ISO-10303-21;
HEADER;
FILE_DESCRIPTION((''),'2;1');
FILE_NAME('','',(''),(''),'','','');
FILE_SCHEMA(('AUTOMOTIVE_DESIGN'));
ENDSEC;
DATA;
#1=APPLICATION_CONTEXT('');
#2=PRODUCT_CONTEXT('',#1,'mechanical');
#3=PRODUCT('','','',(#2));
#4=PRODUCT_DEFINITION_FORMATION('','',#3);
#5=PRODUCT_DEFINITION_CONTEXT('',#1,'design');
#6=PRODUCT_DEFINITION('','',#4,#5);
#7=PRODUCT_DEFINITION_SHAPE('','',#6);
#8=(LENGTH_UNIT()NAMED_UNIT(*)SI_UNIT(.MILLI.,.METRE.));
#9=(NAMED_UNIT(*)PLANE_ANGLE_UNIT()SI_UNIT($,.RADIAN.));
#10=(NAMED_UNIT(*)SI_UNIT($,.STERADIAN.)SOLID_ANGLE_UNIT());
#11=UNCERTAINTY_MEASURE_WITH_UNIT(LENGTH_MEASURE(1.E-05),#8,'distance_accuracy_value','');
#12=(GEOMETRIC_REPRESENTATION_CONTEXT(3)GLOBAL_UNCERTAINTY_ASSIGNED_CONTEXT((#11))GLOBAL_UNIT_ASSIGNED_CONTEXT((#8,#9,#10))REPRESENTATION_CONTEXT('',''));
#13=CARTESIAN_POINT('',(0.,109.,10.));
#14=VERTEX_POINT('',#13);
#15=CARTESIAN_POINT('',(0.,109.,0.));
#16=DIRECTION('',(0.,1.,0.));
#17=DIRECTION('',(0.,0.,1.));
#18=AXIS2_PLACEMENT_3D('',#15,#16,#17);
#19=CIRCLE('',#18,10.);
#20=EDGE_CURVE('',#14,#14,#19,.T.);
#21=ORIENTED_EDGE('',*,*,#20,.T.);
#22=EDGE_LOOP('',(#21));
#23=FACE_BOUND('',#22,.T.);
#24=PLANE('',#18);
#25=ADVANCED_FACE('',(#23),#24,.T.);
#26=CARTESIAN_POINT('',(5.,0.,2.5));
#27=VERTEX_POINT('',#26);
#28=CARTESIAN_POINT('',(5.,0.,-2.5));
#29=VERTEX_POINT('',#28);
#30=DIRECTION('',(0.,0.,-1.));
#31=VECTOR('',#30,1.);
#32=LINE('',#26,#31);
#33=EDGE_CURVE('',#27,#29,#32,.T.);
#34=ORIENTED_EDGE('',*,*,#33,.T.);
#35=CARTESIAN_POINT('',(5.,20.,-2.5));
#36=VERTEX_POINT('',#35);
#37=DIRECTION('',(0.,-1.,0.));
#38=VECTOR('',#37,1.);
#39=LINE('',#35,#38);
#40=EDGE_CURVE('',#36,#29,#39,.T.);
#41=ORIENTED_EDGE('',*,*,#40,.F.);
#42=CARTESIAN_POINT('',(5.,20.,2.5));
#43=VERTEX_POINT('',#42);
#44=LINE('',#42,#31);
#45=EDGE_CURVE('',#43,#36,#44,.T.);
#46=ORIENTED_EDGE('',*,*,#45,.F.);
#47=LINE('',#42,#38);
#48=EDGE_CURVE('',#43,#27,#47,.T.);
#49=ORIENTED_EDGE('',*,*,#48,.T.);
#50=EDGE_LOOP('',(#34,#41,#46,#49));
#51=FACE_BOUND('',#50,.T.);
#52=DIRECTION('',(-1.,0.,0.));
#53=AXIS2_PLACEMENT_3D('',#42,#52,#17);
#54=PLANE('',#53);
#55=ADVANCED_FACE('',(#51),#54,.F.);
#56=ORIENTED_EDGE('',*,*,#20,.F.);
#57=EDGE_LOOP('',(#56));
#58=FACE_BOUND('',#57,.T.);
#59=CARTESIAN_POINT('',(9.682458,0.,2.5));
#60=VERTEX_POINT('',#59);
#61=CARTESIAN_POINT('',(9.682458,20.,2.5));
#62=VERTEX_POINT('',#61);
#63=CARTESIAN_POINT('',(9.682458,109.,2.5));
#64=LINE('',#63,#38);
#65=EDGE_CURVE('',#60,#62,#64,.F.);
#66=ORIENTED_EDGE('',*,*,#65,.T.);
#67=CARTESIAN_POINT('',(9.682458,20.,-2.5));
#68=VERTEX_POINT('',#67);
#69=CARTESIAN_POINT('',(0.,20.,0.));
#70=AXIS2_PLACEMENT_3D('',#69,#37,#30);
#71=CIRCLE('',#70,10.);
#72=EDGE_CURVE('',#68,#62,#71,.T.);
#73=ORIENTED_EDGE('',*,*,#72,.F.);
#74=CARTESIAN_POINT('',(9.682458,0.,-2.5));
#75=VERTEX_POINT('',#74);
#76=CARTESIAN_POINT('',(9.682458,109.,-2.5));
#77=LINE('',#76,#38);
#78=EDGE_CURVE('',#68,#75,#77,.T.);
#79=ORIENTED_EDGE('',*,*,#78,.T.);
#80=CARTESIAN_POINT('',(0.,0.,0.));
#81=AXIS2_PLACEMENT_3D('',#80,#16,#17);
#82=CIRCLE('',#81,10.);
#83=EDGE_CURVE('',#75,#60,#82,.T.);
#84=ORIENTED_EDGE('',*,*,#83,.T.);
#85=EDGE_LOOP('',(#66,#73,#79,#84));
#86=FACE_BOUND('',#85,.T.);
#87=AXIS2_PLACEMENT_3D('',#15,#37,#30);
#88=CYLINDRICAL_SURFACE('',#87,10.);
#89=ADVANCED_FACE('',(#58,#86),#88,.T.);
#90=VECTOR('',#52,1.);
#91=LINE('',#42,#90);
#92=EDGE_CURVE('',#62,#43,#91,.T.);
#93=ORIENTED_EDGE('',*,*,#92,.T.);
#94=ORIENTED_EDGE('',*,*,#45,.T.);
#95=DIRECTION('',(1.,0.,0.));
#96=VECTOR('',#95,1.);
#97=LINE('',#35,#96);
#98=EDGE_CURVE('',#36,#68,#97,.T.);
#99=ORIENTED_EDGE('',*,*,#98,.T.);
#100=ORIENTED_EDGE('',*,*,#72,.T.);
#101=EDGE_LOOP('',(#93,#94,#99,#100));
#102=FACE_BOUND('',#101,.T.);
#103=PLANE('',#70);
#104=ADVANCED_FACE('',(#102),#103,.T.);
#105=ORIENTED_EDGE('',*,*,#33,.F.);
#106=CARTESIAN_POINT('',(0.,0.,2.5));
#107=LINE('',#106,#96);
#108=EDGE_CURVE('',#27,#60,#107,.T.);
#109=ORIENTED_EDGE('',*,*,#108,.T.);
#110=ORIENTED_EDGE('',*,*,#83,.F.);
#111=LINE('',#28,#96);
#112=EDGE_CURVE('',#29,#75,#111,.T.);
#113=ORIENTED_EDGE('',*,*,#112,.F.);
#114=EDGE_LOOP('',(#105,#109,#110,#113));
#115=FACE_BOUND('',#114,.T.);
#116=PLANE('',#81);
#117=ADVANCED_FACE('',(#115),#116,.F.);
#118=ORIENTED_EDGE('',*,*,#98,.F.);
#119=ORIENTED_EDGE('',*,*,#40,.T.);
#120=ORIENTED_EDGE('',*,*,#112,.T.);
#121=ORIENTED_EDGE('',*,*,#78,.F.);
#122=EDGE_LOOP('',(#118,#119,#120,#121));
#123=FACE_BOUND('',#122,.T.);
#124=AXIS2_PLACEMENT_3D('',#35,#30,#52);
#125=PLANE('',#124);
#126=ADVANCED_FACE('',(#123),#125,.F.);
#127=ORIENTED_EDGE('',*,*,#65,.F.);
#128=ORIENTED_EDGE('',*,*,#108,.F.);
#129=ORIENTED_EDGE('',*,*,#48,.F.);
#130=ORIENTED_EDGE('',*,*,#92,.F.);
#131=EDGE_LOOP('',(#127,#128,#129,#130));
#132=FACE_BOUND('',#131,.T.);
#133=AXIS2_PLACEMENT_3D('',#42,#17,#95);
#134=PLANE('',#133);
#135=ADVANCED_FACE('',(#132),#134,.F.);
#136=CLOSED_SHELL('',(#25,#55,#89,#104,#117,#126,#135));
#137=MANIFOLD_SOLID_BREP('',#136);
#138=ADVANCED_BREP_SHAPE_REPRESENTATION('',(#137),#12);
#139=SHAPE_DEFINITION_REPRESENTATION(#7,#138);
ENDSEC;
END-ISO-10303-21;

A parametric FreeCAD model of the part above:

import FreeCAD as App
import Part
import Sketcher

V = App.Vector

doc = App.newDocument("Part")
params = doc.addObject("Spreadsheet::Sheet", "Params")
for row, (alias, value) in enumerate([
    ("sketch1_diameter", "20 mm"),
    ("pad1_length", "109 mm"),
    ("sketch2_width", "10 mm"),
    ("sketch2_height", "5 mm"),
    ("pocket1_length", "20 mm"),
], start=1):
    params.set(f"A{row}", alias)
    params.set(f"B{row}", "=" + value)
    params.setAlias(f"B{row}", alias)

body = doc.addObject("PartDesign::Body", "Body")

# Sketch on XZ plane
sketch1 = body.newObject("Sketcher::SketchObject", "Sketch")
sketch1.AttachmentSupport = (doc.getObject("XZ_Plane"), [""])
sketch1.MapMode = "FlatFace"
sketch1.addGeometry(Part.Circle(V(0, 0, 0), V(0, 0, 1), 10), False)
sketch1.addConstraint([
    Sketcher.Constraint("Coincident", 0, 3, -1, 1),
    Sketcher.Constraint("Diameter", 0, 20.0),
])
sketch1.setExpression("Constraints[1]", "Params.sketch1_diameter")
pad1 = body.newObject("PartDesign::Pad", "Pad")
pad1.Profile = sketch1
pad1.setExpression("Length", "Params.pad1_length")
pad1.Reversed = True

# Sketch on XZ plane
sketch2 = body.newObject("Sketcher::SketchObject", "Sketch001")
sketch2.AttachmentSupport = (doc.getObject("XZ_Plane"), [""])
sketch2.MapMode = "FlatFace"
sketch2.addGeometry([
    Part.LineSegment(V(5, 2, 0), V(5, -2, 0)),
    Part.LineSegment(V(5, -2, 0), V(15, -2, 0)),
    Part.LineSegment(V(15, -2, 0), V(15, 2, 0)),
    Part.LineSegment(V(15, 2, 0), V(5, 2, 0)),
], False)
sketch2.addConstraint([
    Sketcher.Constraint("Coincident", 0, 2, 1, 1),
    Sketcher.Constraint("Coincident", 1, 2, 2, 1),
    Sketcher.Constraint("Coincident", 2, 2, 3, 1),
    Sketcher.Constraint("Coincident", 3, 2, 0, 1),
    Sketcher.Constraint("Vertical", 0),
    Sketcher.Constraint("Horizontal", 1),
    Sketcher.Constraint("Vertical", 2),
    Sketcher.Constraint("Horizontal", 3),
    Sketcher.Constraint("DistanceX", 1, 1, 1, 2, 10.0),
    Sketcher.Constraint("DistanceY", 0, 2, 0, 1, 5.0),
    Sketcher.Constraint("DistanceX", -1, 1, 0, 2, 5.0),
    Sketcher.Constraint("DistanceY", 0, 2, -1, 1, 2.5),
])
sketch2.setExpression("Constraints[8]", "Params.sketch2_width")
sketch2.setExpression("Constraints[9]", "Params.sketch2_height")
pocket1 = body.newObject("PartDesign::Pocket", "Pocket")
pocket1.Profile = sketch2
pocket1.setExpression("Length", "Params.pocket1_length")

doc.recompute()
